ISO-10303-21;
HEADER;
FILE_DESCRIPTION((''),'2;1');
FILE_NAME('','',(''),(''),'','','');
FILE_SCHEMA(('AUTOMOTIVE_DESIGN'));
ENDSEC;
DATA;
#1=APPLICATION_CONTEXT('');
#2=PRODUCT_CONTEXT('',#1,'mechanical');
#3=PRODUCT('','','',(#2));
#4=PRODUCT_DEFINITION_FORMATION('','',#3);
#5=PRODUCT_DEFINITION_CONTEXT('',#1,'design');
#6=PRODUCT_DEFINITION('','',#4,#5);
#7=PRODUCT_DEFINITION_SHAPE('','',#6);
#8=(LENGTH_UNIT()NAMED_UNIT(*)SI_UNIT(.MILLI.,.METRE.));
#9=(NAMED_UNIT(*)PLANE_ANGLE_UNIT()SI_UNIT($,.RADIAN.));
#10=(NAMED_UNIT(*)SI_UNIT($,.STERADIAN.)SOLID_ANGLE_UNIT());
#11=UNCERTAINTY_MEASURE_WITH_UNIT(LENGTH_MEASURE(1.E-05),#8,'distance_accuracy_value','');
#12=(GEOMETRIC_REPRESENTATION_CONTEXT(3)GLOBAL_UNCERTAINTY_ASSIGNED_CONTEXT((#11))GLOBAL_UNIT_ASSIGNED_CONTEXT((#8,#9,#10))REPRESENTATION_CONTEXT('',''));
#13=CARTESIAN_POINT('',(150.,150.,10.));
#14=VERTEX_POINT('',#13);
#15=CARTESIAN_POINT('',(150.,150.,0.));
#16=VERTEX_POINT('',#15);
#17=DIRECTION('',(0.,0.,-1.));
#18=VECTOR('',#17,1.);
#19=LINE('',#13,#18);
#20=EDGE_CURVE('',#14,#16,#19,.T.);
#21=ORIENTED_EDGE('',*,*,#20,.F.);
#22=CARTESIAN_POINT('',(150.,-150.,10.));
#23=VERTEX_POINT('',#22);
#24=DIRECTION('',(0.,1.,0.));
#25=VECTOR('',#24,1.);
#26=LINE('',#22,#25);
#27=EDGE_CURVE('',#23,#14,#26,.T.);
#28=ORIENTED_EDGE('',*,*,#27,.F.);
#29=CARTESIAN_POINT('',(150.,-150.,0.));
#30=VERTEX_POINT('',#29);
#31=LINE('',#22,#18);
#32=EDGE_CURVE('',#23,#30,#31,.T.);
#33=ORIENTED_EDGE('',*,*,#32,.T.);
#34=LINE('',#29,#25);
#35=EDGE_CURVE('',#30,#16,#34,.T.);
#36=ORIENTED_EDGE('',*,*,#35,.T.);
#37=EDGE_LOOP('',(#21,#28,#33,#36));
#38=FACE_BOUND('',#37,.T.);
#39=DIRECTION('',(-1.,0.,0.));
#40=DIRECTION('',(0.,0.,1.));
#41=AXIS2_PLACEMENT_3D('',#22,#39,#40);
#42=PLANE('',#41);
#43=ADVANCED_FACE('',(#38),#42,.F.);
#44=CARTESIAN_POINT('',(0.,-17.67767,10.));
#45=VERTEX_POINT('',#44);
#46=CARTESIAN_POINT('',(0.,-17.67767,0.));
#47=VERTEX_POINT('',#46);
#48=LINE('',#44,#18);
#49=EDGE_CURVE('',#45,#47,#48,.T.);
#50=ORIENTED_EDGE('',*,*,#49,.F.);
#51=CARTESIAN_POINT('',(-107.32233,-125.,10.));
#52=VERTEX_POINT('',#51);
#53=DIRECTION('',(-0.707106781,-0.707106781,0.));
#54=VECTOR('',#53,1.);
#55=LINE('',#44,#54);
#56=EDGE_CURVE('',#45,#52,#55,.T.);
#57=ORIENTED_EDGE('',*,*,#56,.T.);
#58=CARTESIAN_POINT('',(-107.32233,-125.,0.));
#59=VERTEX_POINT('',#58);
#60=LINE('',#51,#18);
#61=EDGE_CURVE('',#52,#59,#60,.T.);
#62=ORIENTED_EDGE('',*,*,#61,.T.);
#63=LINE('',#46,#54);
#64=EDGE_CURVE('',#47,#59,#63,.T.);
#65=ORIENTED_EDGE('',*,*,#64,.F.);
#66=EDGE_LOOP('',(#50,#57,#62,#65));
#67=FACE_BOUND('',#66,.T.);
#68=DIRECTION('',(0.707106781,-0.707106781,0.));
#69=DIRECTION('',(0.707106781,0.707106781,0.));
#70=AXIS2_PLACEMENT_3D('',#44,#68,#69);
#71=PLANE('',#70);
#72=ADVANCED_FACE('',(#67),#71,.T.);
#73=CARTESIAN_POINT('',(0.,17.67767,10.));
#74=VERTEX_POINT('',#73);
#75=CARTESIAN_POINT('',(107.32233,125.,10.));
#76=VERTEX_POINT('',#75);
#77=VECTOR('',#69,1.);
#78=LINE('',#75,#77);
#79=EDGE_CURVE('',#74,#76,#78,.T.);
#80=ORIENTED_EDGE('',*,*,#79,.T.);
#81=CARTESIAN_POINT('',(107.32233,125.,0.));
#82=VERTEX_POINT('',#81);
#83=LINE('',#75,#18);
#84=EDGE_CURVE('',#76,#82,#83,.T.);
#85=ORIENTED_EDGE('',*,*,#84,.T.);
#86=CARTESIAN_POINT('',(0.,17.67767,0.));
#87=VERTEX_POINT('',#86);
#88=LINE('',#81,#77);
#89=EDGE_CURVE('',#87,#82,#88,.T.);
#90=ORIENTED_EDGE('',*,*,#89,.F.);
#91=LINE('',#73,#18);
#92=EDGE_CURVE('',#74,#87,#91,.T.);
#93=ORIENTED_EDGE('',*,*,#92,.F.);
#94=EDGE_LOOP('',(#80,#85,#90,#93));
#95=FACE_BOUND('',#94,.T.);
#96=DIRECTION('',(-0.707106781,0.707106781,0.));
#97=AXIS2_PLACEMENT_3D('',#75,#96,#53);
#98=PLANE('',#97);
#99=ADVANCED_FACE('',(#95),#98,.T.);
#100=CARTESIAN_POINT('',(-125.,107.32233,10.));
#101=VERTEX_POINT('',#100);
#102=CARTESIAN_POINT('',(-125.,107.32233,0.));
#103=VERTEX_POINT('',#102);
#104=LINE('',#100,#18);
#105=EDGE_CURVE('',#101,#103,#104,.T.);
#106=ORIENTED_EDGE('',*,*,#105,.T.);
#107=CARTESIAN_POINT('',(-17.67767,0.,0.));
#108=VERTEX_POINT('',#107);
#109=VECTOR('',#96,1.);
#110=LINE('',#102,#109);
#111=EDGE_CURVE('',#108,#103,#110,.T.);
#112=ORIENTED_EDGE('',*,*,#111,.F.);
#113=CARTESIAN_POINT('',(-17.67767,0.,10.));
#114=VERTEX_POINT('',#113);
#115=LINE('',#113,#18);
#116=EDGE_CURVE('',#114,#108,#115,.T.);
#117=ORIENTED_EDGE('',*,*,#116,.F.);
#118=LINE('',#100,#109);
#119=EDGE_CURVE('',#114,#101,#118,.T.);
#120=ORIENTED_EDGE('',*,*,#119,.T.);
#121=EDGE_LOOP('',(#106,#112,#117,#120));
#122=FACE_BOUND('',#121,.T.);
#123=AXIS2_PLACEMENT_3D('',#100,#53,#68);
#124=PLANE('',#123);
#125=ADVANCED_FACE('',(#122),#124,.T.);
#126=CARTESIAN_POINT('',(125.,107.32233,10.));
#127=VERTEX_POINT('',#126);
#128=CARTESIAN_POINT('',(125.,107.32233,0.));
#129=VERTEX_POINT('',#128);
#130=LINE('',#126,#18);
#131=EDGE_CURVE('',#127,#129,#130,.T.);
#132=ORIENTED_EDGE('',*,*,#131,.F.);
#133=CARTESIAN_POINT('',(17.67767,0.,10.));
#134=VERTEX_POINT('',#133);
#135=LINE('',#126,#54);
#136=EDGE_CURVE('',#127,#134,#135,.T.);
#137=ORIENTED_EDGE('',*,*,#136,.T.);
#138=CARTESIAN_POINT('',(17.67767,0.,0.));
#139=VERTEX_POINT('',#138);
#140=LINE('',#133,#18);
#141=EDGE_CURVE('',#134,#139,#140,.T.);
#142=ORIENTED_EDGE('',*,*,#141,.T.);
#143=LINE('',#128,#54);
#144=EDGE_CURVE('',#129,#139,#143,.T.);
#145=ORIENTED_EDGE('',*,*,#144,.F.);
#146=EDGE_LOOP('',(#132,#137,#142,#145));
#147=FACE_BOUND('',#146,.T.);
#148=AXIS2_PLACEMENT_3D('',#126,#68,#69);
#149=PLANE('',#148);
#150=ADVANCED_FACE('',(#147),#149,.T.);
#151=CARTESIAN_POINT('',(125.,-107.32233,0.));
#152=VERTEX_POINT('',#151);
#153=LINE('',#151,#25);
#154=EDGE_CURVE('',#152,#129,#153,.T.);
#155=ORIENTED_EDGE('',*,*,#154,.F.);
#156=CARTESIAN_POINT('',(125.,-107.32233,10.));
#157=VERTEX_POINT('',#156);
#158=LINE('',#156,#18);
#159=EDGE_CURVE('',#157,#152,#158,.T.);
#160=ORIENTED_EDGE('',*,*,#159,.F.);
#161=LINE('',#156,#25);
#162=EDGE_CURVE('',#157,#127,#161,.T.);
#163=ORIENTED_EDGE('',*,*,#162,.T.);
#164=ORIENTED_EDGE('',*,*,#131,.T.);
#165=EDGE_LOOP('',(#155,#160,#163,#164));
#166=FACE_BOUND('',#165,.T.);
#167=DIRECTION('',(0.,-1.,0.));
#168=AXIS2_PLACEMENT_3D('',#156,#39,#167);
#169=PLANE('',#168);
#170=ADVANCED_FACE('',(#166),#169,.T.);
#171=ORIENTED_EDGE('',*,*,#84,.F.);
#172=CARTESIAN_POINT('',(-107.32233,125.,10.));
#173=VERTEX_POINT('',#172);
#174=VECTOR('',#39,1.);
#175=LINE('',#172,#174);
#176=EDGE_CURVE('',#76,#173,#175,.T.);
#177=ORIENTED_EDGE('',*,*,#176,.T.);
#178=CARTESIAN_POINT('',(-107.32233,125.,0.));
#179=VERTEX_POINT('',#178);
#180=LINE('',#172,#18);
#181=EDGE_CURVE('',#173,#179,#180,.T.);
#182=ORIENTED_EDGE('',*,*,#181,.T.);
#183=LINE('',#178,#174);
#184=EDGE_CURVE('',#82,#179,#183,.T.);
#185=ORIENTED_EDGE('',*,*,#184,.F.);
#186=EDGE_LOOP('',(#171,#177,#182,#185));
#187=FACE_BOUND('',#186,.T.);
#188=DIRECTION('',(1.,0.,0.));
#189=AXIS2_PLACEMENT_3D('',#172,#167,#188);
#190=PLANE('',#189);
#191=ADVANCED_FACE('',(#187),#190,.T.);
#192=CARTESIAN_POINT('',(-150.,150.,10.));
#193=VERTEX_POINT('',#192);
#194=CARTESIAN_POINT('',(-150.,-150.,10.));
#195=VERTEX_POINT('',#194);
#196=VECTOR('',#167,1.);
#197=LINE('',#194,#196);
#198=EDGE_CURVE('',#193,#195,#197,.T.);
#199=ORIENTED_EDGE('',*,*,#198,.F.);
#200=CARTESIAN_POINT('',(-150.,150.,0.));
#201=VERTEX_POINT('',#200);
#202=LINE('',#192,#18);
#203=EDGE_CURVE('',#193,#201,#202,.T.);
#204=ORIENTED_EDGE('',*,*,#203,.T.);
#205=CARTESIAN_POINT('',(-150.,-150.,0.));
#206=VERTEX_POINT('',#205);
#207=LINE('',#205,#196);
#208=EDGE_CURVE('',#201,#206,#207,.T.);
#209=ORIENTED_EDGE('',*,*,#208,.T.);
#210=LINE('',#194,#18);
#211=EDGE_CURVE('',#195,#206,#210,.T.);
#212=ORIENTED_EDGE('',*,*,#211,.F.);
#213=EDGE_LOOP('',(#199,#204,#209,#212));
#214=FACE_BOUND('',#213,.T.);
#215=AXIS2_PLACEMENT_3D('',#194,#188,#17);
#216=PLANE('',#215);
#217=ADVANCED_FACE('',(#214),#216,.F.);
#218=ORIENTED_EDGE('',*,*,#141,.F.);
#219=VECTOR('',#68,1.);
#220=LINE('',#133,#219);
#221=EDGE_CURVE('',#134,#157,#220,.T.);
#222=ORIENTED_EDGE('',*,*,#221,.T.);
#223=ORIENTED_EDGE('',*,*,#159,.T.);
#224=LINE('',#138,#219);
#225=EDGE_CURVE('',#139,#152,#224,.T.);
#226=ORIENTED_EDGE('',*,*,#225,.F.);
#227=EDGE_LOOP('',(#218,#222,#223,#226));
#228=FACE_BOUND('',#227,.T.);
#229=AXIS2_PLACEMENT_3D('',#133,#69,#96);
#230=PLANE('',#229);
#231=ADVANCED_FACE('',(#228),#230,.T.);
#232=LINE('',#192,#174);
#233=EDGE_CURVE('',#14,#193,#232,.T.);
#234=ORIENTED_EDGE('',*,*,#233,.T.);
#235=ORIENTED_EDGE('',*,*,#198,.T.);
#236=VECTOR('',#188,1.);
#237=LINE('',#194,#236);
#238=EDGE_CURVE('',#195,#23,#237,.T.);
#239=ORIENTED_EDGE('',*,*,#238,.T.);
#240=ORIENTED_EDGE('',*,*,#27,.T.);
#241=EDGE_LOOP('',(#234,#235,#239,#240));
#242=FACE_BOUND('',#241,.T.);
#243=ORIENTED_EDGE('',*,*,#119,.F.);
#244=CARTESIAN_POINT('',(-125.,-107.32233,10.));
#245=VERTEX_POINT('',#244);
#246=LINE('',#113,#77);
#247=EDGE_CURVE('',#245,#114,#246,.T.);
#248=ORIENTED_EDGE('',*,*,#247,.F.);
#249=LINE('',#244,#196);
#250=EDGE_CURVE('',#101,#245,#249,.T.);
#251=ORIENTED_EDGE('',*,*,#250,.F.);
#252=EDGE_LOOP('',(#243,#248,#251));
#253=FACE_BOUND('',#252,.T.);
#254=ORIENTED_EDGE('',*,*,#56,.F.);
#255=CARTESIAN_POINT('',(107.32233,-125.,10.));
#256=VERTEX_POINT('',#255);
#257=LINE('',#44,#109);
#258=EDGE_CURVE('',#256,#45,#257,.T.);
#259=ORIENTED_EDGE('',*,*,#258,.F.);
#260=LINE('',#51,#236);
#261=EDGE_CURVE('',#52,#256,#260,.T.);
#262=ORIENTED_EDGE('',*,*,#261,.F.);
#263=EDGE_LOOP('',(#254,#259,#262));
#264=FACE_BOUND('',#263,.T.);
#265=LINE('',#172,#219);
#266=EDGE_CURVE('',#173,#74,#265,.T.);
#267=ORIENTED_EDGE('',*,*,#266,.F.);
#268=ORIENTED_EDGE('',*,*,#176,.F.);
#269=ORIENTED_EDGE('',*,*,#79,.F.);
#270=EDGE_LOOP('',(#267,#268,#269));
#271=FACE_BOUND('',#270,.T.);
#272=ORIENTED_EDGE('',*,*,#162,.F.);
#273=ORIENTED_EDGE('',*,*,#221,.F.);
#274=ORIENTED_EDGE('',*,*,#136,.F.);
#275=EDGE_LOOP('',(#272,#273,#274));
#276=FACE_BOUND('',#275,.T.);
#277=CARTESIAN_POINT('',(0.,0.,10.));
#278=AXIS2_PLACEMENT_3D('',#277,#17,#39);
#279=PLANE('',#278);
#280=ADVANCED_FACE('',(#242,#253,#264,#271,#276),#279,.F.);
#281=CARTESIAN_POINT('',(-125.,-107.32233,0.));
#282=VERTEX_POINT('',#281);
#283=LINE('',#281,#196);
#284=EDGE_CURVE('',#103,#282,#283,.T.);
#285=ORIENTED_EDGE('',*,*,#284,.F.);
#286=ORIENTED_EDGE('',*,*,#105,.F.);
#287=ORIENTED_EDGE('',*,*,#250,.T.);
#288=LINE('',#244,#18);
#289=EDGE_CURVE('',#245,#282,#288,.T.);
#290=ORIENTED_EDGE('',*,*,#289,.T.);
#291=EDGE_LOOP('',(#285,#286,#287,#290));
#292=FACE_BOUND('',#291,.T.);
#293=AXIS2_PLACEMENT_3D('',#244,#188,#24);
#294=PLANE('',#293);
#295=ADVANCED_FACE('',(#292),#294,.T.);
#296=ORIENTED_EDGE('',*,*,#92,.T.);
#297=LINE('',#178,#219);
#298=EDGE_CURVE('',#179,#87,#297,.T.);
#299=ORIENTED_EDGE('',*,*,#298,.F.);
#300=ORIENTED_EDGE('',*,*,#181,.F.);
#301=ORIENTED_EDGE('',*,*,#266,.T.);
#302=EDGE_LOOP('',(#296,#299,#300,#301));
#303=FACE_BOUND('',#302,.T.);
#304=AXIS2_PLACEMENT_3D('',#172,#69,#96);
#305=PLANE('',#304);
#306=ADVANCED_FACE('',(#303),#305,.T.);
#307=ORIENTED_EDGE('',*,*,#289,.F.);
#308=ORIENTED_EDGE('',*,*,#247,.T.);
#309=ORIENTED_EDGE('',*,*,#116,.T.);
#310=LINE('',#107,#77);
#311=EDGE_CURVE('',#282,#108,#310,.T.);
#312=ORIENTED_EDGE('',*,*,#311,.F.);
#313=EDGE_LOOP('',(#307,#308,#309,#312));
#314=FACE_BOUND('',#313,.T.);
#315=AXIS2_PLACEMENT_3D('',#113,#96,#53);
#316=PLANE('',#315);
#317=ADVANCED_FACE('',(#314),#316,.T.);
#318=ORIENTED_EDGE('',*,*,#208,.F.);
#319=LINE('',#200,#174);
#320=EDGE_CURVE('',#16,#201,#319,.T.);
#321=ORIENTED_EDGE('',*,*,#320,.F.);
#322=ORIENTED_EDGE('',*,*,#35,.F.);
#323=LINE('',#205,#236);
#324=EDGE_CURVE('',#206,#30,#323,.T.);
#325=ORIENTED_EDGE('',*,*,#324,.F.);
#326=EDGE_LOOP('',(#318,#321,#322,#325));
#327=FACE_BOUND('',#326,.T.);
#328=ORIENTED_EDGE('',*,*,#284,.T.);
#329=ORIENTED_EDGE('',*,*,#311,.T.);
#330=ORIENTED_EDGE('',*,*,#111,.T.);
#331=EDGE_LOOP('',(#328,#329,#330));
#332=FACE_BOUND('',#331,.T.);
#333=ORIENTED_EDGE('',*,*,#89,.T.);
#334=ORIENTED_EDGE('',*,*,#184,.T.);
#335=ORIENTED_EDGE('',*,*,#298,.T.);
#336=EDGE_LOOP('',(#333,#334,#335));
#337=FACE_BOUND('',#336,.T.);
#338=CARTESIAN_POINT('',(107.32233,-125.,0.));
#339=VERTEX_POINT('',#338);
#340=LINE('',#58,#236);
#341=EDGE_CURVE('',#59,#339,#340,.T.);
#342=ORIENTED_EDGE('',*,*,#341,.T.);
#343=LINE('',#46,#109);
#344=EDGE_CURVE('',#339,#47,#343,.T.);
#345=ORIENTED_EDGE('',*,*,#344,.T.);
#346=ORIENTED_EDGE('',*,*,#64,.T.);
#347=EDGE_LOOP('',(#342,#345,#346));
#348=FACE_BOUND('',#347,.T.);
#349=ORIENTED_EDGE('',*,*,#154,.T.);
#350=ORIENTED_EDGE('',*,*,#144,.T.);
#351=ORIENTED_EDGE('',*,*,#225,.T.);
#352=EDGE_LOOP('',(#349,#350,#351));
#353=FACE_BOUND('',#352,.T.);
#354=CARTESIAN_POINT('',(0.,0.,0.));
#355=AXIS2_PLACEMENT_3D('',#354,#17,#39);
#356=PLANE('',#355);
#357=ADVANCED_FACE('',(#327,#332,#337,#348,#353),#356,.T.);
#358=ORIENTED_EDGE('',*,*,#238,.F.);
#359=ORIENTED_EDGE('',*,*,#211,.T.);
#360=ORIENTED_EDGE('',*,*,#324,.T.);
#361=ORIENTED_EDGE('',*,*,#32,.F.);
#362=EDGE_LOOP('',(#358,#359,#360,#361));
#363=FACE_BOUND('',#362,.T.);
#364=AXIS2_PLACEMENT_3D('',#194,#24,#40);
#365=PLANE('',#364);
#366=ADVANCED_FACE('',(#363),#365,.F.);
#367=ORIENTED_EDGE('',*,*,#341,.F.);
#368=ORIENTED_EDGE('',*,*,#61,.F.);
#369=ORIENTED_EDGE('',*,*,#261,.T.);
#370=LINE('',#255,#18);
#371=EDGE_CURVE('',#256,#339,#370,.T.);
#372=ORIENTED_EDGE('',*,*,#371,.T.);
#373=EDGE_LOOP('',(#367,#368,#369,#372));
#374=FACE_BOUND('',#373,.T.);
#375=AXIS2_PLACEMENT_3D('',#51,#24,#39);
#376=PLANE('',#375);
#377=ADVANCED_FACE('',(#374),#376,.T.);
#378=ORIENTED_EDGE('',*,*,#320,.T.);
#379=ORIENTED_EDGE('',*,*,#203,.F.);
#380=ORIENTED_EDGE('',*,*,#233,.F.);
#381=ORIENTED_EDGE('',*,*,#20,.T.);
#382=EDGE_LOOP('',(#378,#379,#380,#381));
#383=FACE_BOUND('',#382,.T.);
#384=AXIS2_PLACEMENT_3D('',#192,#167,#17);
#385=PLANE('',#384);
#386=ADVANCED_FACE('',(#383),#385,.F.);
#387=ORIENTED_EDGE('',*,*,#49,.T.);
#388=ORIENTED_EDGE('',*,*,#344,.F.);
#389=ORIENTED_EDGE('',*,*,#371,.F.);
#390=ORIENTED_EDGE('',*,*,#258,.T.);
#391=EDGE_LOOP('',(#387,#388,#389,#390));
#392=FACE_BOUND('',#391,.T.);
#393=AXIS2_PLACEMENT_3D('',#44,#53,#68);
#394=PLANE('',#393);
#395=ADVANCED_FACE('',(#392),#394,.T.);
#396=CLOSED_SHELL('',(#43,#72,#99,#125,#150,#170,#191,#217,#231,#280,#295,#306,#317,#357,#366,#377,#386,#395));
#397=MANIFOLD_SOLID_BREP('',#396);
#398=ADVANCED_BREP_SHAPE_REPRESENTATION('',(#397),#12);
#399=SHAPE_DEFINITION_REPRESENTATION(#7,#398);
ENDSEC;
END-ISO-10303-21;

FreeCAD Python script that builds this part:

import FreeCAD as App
import Part
import Sketcher

V = App.Vector
Q = App.Units.Quantity

doc = App.newDocument("Part")
body = doc.addObject("PartDesign::Body", "Body")

# Sketch on XY plane
sketch1 = body.newObject("Sketcher::SketchObject", "Sketch")
sketch1.AttachmentSupport = (doc.getObject("XY_Plane"), [""])
sketch1.MapMode = "FlatFace"
sketch1.addGeometry(Part.LineSegment(V(-150, 150, 0), V(-150, -150, 0)), False)
sketch1.addGeometry(Part.LineSegment(V(-150, -150, 0), V(150, -150, 0)), False)
sketch1.addGeometry(Part.LineSegment(V(150, -150, 0), V(150, 150, 0)), False)
sketch1.addGeometry(Part.LineSegment(V(150, 150, 0), V(-150, 150, 0)), False)
sketch1.addGeometry(Part.LineSegment(V(107.32233, -125, 0), V(-107.32233, -125, 0)), False)
sketch1.addGeometry(Part.LineSegment(V(-107.32233, -125, 0), V(0, -17.67767, 0)), False)
sketch1.addGeometry(Part.LineSegment(V(0, -17.67767, 0), V(107.32233, -125, 0)), False)
sketch1.addGeometry(Part.LineSegment(V(-17.67767, 0, 0), V(-125, -107.32233, 0)), False)
sketch1.addGeometry(Part.LineSegment(V(-125, -107.32233, 0), V(-125, 107.32233, 0)), False)
sketch1.addGeometry(Part.LineSegment(V(-125, 107.32233, 0), V(-17.67767, 0, 0)), False)
sketch1.addGeometry(Part.LineSegment(V(125, 107.32233, 0), V(125, -107.32233, 0)), False)
sketch1.addGeometry(Part.LineSegment(V(125, -107.32233, 0), V(17.67767, 0, 0)), False)
sketch1.addGeometry(Part.LineSegment(V(17.67767, 0, 0), V(125, 107.32233, 0)), False)
sketch1.addGeometry(Part.LineSegment(V(0, 17.67767, 0), V(-107.32233, 125, 0)), False)
sketch1.addGeometry(Part.LineSegment(V(-107.32233, 125, 0), V(107.32233, 125, 0)), False)
sketch1.addGeometry(Part.LineSegment(V(107.32233, 125, 0), V(0, 17.67767, 0)), False)
sketch1.addConstraint(Sketcher.Constraint("Coincident", 0, 2, 1, 1))
sketch1.addConstraint(Sketcher.Constraint("Coincident", 1, 2, 2, 1))
sketch1.addConstraint(Sketcher.Constraint("Coincident", 2, 2, 3, 1))
sketch1.addConstraint(Sketcher.Constraint("Coincident", 3, 2, 0, 1))
sketch1.addConstraint(Sketcher.Constraint("Coincident", 4, 2, 5, 1))
sketch1.addConstraint(Sketcher.Constraint("Coincident", 5, 2, 6, 1))
sketch1.addConstraint(Sketcher.Constraint("Coincident", 6, 2, 4, 1))
sketch1.addConstraint(Sketcher.Constraint("Coincident", 7, 2, 8, 1))
sketch1.addConstraint(Sketcher.Constraint("Coincident", 8, 2, 9, 1))
sketch1.addConstraint(Sketcher.Constraint("Coincident", 9, 2, 7, 1))
sketch1.addConstraint(Sketcher.Constraint("Coincident", 10, 2, 11, 1))
sketch1.addConstraint(Sketcher.Constraint("Coincident", 11, 2, 12, 1))
sketch1.addConstraint(Sketcher.Constraint("Coincident", 12, 2, 10, 1))
sketch1.addConstraint(Sketcher.Constraint("Coincident", 13, 2, 14, 1))
sketch1.addConstraint(Sketcher.Constraint("Coincident", 14, 2, 15, 1))
sketch1.addConstraint(Sketcher.Constraint("Coincident", 15, 2, 13, 1))
sketch1.addConstraint(Sketcher.Constraint("Vertical", 0))
sketch1.addConstraint(Sketcher.Constraint("Horizontal", 1))
sketch1.addConstraint(Sketcher.Constraint("Vertical", 2))
sketch1.addConstraint(Sketcher.Constraint("Horizontal", 3))
sketch1.addConstraint(Sketcher.Constraint("Horizontal", 4))
sketch1.addConstraint(Sketcher.Constraint("Vertical", 8))
sketch1.addConstraint(Sketcher.Constraint("Vertical", 10))
sketch1.addConstraint(Sketcher.Constraint("Horizontal", 14))
sketch1.addConstraint(Sketcher.Constraint("Symmetric", 0, 2, 2, 2, -1, 1))
sketch1.addConstraint(Sketcher.Constraint("Symmetric", 8, 2, 10, 2, -1, 1))
sketch1.addConstraint(Sketcher.Constraint("Symmetric", 9, 2, 11, 2, -1, 1))
sketch1.addConstraint(Sketcher.Constraint("Symmetric", 6, 2, 13, 2, -1, 1))
sketch1.addConstraint(Sketcher.Constraint("Symmetric", 5, 2, 15, 2, -1, 1))
sketch1.addConstraint(Sketcher.Constraint("PointOnObject", 5, 2, -2))
sketch1.addConstraint(Sketcher.Constraint("PointOnObject", 9, 2, -1))
sketch1.addConstraint(Sketcher.Constraint("Perpendicular", 5, 6))
sketch1.addConstraint(Sketcher.Constraint("Perpendicular", 6, 7))
sketch1.addConstraint(Sketcher.Constraint("Perpendicular", 7, 9))
sketch1.addConstraint(Sketcher.Constraint("Perpendicular", 11, 12))
sketch1.addConstraint(Sketcher.Constraint("Perpendicular", 13, 15))
sketch1.addConstraint(Sketcher.Constraint("Horizontal", 7, 2, 10, 2))
sketch1.addConstraint(Sketcher.Constraint("Equal", 3, 0))
sketch1.addConstraint(Sketcher.Constraint("Equal", 14, 8))
sketch1.addConstraint(Sketcher.Constraint("DistanceX", 1, 1, 1, 2, Q("300 mm")))
sketch1.addConstraint(Sketcher.Constraint("DistanceY", 4, 2, -1, 1, Q("125 mm")))
sketch1.addConstraint(Sketcher.Constraint("DistanceX", 7, 2, -1, 1, Q("125 mm")))
sketch1.addConstraint(Sketcher.Constraint("DistanceX", 4, 2, 4, 1, Q("214.644661 mm")))
pad1 = body.newObject("PartDesign::Pad", "Pad")
pad1.Profile = sketch1
pad1.Length = 10

doc.recompute()
